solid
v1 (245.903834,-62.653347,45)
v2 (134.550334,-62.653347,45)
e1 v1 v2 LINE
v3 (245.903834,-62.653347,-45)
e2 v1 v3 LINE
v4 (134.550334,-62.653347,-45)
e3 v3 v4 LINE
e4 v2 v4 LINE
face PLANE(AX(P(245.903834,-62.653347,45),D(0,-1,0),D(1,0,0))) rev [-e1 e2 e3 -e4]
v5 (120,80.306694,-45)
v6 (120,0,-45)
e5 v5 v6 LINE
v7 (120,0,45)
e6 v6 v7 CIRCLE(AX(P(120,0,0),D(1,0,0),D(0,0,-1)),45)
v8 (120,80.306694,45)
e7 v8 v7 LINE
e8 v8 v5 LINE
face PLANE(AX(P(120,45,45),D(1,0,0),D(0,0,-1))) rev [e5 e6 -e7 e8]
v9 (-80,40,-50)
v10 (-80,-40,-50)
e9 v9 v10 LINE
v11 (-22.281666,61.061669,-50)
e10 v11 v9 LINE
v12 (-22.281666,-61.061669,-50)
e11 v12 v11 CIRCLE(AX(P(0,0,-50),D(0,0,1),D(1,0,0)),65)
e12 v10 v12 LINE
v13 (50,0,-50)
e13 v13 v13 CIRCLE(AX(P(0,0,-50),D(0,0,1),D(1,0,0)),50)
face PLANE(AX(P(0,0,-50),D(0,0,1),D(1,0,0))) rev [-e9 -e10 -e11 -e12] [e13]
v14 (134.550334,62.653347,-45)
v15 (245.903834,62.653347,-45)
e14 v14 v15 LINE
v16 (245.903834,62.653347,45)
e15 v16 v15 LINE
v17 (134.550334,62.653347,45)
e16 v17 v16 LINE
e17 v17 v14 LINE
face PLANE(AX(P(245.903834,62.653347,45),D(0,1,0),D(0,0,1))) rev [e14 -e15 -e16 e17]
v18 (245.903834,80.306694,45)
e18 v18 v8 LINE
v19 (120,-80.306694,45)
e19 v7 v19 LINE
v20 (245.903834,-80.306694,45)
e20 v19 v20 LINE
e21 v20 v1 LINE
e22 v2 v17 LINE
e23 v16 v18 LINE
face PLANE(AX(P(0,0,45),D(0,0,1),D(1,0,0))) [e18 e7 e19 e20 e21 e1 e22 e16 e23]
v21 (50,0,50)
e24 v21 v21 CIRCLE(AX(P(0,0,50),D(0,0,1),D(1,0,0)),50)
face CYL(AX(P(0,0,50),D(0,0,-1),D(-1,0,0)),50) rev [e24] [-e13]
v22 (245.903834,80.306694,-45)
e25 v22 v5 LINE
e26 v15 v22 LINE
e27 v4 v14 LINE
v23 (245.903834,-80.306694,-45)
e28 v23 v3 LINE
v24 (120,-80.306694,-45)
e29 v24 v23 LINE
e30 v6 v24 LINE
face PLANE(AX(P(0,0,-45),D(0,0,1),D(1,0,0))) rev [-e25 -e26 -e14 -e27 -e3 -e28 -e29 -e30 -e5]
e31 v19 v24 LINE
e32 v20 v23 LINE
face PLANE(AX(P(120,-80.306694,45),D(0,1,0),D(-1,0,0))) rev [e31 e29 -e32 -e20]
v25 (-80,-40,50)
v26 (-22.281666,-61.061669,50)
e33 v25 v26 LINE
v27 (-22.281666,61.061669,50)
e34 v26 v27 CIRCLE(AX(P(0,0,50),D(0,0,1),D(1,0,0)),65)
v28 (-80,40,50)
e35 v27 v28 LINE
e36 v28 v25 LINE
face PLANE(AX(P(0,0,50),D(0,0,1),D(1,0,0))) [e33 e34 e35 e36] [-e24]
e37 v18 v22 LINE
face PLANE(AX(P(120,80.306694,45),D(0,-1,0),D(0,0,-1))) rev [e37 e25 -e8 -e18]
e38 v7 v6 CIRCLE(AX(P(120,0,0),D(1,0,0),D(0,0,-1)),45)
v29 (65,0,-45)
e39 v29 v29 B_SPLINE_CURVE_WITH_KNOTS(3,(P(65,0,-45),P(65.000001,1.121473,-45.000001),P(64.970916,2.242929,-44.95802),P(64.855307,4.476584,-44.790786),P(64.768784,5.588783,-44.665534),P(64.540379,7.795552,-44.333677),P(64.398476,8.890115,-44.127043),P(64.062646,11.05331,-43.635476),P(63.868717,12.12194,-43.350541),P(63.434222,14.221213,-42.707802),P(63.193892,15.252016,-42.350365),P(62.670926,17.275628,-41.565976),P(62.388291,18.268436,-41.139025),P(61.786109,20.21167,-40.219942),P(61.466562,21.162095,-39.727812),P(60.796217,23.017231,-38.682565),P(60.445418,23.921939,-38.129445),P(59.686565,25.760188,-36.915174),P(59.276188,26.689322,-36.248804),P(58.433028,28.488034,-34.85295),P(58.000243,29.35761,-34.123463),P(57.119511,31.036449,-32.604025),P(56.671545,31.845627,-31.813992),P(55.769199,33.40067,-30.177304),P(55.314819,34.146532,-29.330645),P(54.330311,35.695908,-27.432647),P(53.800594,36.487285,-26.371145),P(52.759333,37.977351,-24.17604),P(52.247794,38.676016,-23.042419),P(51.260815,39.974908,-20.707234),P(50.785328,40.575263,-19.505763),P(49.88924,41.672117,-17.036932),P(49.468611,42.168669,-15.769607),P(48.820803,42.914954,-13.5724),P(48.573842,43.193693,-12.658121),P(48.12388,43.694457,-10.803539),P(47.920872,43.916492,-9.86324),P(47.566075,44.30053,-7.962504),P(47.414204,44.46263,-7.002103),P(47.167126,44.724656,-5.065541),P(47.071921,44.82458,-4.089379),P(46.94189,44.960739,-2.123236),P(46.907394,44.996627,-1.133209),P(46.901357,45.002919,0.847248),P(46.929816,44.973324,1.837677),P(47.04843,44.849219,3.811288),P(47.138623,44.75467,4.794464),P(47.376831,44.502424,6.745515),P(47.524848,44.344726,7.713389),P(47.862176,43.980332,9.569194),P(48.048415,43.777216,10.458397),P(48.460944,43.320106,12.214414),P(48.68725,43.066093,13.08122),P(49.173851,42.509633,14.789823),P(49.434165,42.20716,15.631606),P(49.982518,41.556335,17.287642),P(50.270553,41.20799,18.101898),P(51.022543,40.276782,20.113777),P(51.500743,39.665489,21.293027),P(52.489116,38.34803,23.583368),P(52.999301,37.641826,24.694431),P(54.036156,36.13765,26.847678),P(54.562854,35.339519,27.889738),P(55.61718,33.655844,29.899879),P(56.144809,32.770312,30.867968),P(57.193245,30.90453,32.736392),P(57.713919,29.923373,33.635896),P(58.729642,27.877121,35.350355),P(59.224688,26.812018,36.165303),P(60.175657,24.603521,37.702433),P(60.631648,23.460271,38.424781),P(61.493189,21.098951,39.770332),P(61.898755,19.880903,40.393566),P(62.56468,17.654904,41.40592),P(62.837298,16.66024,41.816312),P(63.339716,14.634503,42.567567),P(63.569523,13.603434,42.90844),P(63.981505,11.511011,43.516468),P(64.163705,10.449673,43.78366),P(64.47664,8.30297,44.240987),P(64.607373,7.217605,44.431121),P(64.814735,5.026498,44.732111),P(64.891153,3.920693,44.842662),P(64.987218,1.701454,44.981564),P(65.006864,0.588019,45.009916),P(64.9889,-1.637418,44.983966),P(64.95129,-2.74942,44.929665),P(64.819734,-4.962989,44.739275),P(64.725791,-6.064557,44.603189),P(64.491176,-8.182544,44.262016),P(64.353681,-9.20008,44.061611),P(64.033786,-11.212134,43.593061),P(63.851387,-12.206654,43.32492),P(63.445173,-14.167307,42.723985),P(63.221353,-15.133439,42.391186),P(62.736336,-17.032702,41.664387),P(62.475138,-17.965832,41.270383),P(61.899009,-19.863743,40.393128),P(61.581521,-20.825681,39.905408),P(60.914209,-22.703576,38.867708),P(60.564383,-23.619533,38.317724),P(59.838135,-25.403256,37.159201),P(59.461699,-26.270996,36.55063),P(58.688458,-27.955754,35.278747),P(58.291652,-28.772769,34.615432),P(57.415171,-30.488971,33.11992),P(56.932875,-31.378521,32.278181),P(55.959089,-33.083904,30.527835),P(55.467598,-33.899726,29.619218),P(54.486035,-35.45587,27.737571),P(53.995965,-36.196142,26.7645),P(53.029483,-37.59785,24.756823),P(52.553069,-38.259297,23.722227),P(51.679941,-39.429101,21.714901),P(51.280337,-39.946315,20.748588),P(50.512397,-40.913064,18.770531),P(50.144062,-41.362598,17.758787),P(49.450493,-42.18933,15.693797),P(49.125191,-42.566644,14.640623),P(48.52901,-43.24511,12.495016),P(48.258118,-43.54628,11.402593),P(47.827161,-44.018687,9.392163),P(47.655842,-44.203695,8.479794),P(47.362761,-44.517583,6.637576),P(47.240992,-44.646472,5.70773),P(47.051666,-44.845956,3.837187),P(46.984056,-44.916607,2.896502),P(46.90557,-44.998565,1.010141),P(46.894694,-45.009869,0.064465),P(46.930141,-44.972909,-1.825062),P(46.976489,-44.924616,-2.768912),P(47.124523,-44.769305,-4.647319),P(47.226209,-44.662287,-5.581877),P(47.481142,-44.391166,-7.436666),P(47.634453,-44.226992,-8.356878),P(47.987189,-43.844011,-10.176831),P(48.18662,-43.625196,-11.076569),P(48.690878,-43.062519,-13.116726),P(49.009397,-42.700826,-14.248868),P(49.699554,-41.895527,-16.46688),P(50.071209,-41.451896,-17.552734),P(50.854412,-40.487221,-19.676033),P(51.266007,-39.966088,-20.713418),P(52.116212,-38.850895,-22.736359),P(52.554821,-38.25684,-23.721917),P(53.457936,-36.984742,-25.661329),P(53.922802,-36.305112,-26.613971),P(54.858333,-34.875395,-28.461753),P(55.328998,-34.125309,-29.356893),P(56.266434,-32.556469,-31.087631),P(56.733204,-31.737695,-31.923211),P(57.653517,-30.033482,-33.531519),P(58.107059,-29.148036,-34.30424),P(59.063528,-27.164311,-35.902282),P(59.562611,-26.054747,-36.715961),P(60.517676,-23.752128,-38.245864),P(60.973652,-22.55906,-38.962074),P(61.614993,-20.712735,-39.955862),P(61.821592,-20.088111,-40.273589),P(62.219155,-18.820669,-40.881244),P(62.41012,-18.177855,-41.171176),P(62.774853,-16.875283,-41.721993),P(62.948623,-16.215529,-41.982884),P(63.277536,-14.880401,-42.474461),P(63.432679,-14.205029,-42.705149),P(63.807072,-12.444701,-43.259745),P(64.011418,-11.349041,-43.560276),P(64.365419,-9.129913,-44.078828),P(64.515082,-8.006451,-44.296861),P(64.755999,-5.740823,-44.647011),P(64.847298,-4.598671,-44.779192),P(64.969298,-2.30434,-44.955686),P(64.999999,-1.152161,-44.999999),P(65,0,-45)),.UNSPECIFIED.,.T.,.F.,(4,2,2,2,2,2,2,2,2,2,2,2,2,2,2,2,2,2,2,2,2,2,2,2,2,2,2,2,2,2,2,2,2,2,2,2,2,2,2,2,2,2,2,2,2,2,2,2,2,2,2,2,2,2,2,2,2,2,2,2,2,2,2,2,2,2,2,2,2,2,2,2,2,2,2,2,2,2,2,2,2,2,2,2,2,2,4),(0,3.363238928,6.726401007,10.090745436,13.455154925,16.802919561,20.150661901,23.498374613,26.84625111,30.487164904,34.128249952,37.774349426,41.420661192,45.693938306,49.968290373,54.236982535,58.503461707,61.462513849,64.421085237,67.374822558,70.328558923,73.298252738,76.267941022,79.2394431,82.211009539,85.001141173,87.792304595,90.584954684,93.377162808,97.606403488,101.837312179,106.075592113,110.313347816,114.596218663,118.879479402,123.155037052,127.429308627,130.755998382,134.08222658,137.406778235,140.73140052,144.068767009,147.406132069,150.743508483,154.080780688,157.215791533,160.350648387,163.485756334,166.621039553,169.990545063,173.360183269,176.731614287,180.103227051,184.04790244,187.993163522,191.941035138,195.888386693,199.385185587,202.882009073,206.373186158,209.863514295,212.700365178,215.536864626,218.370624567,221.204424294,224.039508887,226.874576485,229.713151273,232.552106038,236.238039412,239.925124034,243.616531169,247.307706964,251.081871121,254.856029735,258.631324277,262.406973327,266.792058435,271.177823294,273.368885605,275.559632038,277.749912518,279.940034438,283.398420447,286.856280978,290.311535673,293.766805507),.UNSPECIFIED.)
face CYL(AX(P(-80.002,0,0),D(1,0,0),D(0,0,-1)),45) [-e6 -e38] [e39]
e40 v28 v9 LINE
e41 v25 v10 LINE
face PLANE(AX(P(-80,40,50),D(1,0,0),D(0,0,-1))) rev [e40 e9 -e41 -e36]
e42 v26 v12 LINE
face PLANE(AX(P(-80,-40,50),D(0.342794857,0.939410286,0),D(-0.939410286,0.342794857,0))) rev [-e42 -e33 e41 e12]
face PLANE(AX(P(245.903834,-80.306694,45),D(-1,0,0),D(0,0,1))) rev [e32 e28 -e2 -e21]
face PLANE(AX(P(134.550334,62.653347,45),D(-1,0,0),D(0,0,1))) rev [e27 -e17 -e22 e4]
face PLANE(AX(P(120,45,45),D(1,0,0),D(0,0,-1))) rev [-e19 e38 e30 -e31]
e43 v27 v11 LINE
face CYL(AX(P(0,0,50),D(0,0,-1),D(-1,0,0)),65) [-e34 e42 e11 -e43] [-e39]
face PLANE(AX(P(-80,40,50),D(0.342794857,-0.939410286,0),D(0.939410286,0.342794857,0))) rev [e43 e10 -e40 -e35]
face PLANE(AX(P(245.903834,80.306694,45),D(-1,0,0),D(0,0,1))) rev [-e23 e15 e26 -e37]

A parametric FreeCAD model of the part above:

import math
import FreeCAD as App
import Part
import Sketcher
from FreeCAD import Vector
Q = App.Units.Quantity


def add_polygon(sketch, points):
    """Adds a closed chain of lines whose ends are joined by coincident constraints."""
    first, n = sketch.GeometryCount, len(points)
    for a, b in zip(points, points[1:] + points[:1]):
        sketch.addGeometry(Part.LineSegment(App.Vector(*a, 0), App.Vector(*b, 0)), False)
    for i in range(n):
        sketch.addConstraint(Sketcher.Constraint("Coincident", first + i, 2, first + (i + 1) % n, 1))

doc = App.newDocument("Part")
body = doc.addObject("PartDesign::Body", "Body")

# Sketch on XY plane
sketch1 = body.newObject("Sketcher::SketchObject", "Sketch")
sketch1.AttachmentSupport = (doc.getObject("XY_Plane"), [""])
sketch1.MapMode = "FlatFace"
sketch1.addGeometry(Part.LineSegment(Vector(-80, 40, 0), Vector(-80, -40, 0)), False)
sketch1.addGeometry(Part.LineSegment(Vector(-80, -40, 0), Vector(-22, -61, 0)), False)
sketch1.addGeometry(Part.ArcOfCircle(Part.Circle(Vector(0, 0, 0), Vector(0, 0, 1), 65), math.radians(-110), math.radians(110)), False)
sketch1.addGeometry(Part.LineSegment(Vector(-22, 61, 0), Vector(-80, 40, 0)), False)
sketch1.addGeometry(Part.Circle(Vector(0, 0, 0), Vector(0, 0, 1), 50), False)
sketch1.addConstraint(Sketcher.Constraint("Coincident", 0, 2, 1, 1))
sketch1.addConstraint(Sketcher.Constraint("Tangent", 1, 2, 2, 1))
sketch1.addConstraint(Sketcher.Constraint("Tangent", 2, 2, 3, 1))
sketch1.addConstraint(Sketcher.Constraint("Coincident", 3, 2, 0, 1))
sketch1.addConstraint(Sketcher.Constraint("Vertical", 0))
sketch1.addConstraint(Sketcher.Constraint("Coincident", 2, 3, -1, 1))
sketch1.addConstraint(Sketcher.Constraint("Coincident", 4, 3, -1, 1))
sketch1.addConstraint(Sketcher.Constraint("Vertical", 1, 2, 2, 2))
sketch1.addConstraint(Sketcher.Constraint("Diameter", 4, Q("100 mm")))
sketch1.addConstraint(Sketcher.Constraint("Radius", 2, Q("65 mm")))
sketch1.addConstraint(Sketcher.Constraint("DistanceY", 0, 2, 0, 1, Q("80 mm")))
sketch1.addConstraint(Sketcher.Constraint("DistanceX", 0, 2, -1, 1, Q("80 mm")))
pad1 = body.newObject("PartDesign::Pad", "Pad")
pad1.Profile = sketch1
pad1.Length = 100
pad1.Midplane = True

# Sketch on YZ plane
sketch2 = body.newObject("Sketcher::SketchObject", "Sketch001")
sketch2.AttachmentSupport = (doc.getObject("YZ_Plane"), [""])
sketch2.MapMode = "FlatFace"
sketch2.AttachmentOffset = App.Placement(Vector(0, 0, 120), App.Rotation())
sketch2.addGeometry(Part.Circle(Vector(0, 0, 0), Vector(0, 0, 1), 45), False)
sketch2.addConstraint(Sketcher.Constraint("Coincident", 0, 3, -1, 1))
sketch2.addConstraint(Sketcher.Constraint("Diameter", 0, Q("90 mm")))
pad2 = body.newObject("PartDesign::Pad", "Pad001")
pad2.Profile = sketch2
pad2.Type = "UpToFirst"
pad2.Reversed = True

# Sketch on XY plane
sketch3 = body.newObject("Sketcher::SketchObject", "Sketch002")
sketch3.AttachmentSupport = (doc.getObject("XY_Plane"), [""])
sketch3.MapMode = "FlatFace"
add_polygon(sketch3, [(120, 80), (120, -80), (246, -80), (246, -63), (135, -63), (135, 63), (246, 63), (246, 80)])  # lines 0-7
sketch3.addConstraint(Sketcher.Constraint("Vertical", 0))
sketch3.addConstraint(Sketcher.Constraint("Horizontal", 1))
sketch3.addConstraint(Sketcher.Constraint("Vertical", 2))
sketch3.addConstraint(Sketcher.Constraint("Horizontal", 3))
sketch3.addConstraint(Sketcher.Constraint("Vertical", 4))
sketch3.addConstraint(Sketcher.Constraint("Horizontal", 5))
sketch3.addConstraint(Sketcher.Constraint("Vertical", 6))
sketch3.addConstraint(Sketcher.Constraint("Horizontal", 7))
sketch3.addConstraint(Sketcher.Constraint("Symmetric", 2, 2, 5, 2, -1))
sketch3.addConstraint(Sketcher.Constraint("Equal", 2, 6))
sketch3.addConstraint(Sketcher.Constraint("DistanceX", -1, 1, 0, 2, Q("120 mm")))
sketch3.addConstraint(Sketcher.Constraint("DistanceX", 3, 2, 3, 1, Q("111.3535 mm")))
sketch3.addConstraint(Sketcher.Constraint("DistanceY", 0, 2, 0, 1, Q("160.613388 mm")))
sketch3.addConstraint(Sketcher.Constraint("DistanceX", 1, 1, 1, 2, Q("125.903834 mm")))
sketch3.addConstraint(Sketcher.Constraint("DistanceY", 2, 1, 2, 2, Q("17.653347 mm")))
pad3 = body.newObject("PartDesign::Pad", "Pad002")
pad3.Profile = sketch3
pad3.Type = "TwoLengths"
pad3.Length = 45
pad3.Length2 = 45

doc.recompute()
